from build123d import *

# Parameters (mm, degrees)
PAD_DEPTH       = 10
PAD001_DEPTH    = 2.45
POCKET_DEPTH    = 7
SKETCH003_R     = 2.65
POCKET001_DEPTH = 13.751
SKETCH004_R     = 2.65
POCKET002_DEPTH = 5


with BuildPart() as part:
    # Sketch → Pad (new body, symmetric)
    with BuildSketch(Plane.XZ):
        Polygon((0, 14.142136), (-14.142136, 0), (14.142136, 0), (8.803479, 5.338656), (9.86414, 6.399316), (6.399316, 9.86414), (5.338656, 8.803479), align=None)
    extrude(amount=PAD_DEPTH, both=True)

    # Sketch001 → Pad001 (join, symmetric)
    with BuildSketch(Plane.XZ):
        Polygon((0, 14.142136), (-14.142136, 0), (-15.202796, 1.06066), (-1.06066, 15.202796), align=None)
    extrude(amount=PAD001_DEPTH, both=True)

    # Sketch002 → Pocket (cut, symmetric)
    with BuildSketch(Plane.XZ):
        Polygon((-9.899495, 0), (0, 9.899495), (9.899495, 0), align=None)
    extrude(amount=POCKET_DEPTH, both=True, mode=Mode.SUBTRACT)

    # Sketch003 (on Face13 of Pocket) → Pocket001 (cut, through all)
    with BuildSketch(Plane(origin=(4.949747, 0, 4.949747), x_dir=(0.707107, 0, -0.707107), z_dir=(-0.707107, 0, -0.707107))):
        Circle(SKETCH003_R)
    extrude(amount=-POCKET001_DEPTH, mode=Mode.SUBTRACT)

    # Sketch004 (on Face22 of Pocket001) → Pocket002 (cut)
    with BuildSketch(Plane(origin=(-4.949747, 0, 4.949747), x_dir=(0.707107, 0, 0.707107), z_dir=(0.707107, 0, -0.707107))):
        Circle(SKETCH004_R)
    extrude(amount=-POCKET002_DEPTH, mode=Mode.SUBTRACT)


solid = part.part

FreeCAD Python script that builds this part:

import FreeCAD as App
import Part
import Sketcher
Q = App.Units.Quantity


def add_polygon(sketch, points):
    """Adds a closed chain of lines whose ends are joined by coincident constraints."""
    first, n = sketch.GeometryCount, len(points)
    for a, b in zip(points, points[1:] + points[:1]):
        sketch.addGeometry(Part.LineSegment(App.Vector(*a, 0), App.Vector(*b, 0)), False)
    for i in range(n):
        sketch.addConstraint(Sketcher.Constraint("Coincident", first + i, 2, first + (i + 1) % n, 1))

doc = App.newDocument("Part")
body = doc.addObject("PartDesign::Body", "Body")

# Sketch on XZ plane
sketch1 = doc.addObject("Sketcher::SketchObject", "Sketch")
body.addObject(sketch1)
sketch1.AttachmentSupport = (doc.XZ_Plane, [""])
sketch1.MapMode = "FlatFace"
add_polygon(sketch1, [(0, 14.1), (-14.1, 0), (14.1, 0), (8.8, 5.3), (9.9, 6.4), (6.4, 9.9), (5.3, 8.8)])  # lines 0-6
sketch1.addConstraint([
    Sketcher.Constraint("Horizontal", 1),
    Sketcher.Constraint("Symmetric", 0, 2, 1, 2, -1, 1),
    Sketcher.Constraint("PointOnObject", 6, 2, -2),
    Sketcher.Constraint("Perpendicular", 0, 2),
    Sketcher.Constraint("Perpendicular", 2, 3),
    Sketcher.Constraint("Perpendicular", 3, 4),
    Sketcher.Constraint("Perpendicular", 4, 5),
    Sketcher.Constraint("Perpendicular", 5, 6),
    Sketcher.Constraint("Equal", 3, 5),
    Sketcher.Constraint("Equal", 2, 6),
    Sketcher.Constraint("Distance", 0, Q("20.000001 mm")),
    Sketcher.Constraint("Distance", 3, Q("1.5 mm")),
    Sketcher.Constraint("Distance", 4, Q("4.900001 mm")),
])
pad1 = doc.addObject("PartDesign::Pad", "Pad")
body.addObject(pad1)
pad1.Profile = sketch1
pad1.Length = 20
pad1.Midplane = True

# Sketch on XZ plane
sketch2 = doc.addObject("Sketcher::SketchObject", "Sketch001")
body.addObject(sketch2)
sketch2.AttachmentSupport = (doc.XZ_Plane, [""])
sketch2.MapMode = "FlatFace"
add_polygon(sketch2, [(-14.1, 0), (0, 14.1), (-1.1, 15.2), (-15.2, 1.1)])  # lines 0-3
sketch2.addConstraint([
    Sketcher.Constraint("PointOnObject", 0, 2, -2),
    Sketcher.Constraint("PointOnObject", 3, 2, -1),
    Sketcher.Constraint("Perpendicular", 0, 1),
    Sketcher.Constraint("Perpendicular", 1, 2),
    Sketcher.Constraint("Perpendicular", 2, 3),
    Sketcher.Constraint("Angle", 0, Q("45 deg")),
    Sketcher.Constraint("Distance", 0, Q("20.000001 mm")),
    Sketcher.Constraint("Distance", 1, Q("1.5 mm")),
])
pad2 = doc.addObject("PartDesign::Pad", "Pad001")
body.addObject(pad2)
pad2.Profile = sketch2
pad2.Length = 4.9
pad2.Midplane = True

# Sketch on XZ plane
sketch3 = doc.addObject("Sketcher::SketchObject", "Sketch002")
body.addObject(sketch3)
sketch3.AttachmentSupport = (doc.XZ_Plane, [""])
sketch3.MapMode = "FlatFace"
add_polygon(sketch3, [(0, 10), (-10, 0), (10, 0)])  # lines 0-2
sketch3.addConstraint([
    Sketcher.Constraint("Horizontal", 1),
    Sketcher.Constraint("Symmetric", 0, 2, 1, 2, -1, 1),
    Sketcher.Constraint("PointOnObject", 2, 2, -2),
    Sketcher.Constraint("Perpendicular", 0, 2),
    Sketcher.Constraint("Distance", 0, Q("14 mm")),
])
pocket1 = doc.addObject("PartDesign::Pocket", "Pocket")
body.addObject(pocket1)
pocket1.Profile = sketch3
pocket1.Length = 14
pocket1.Midplane = True

# Sketch on an angled plane
sketch4 = doc.addObject("Sketcher::SketchObject", "Sketch003")
body.addObject(sketch4)
sketch4.Placement = App.Placement(App.Vector(4.949747, 0, 4.949747), App.Rotation(App.Vector(0.707106781, 0, -0.707106781), App.Vector(0, -0.999999999, 0), App.Vector(-0.707106781, 0, -0.707106781), "ZXY"))
sketch4.addGeometry(Part.Circle(App.Vector(0, 0, 0), App.Vector(0, 0, 1), 2.6), False)
sketch4.addConstraint([
    Sketcher.Constraint("Coincident", 0, 3, -1, 1),
    Sketcher.Constraint("Diameter", 0, Q("5.3 mm")),
])
pocket2 = doc.addObject("PartDesign::Pocket", "Pocket001")
body.addObject(pocket2)
pocket2.Profile = sketch4
pocket2.Type = "ThroughAll"

# Sketch on an angled plane
sketch5 = doc.addObject("Sketcher::SketchObject", "Sketch004")
body.addObject(sketch5)
sketch5.Placement = App.Placement(App.Vector(-4.949747, 0, 4.949747), App.Rotation(App.Vector(0.707106781, 0, 0.707106781), App.Vector(0, -0.999999999, 0), App.Vector(0.707106781, 0, -0.707106781), "ZXY"))
sketch5.addGeometry(Part.Circle(App.Vector(0, 0, 0), App.Vector(0, 0, 1), 2.6), False)
sketch5.addConstraint([
    Sketcher.Constraint("Coincident", 0, 3, -1, 1),
    Sketcher.Constraint("Diameter", 0, Q("5.3 mm")),
])
pocket3 = doc.addObject("PartDesign::Pocket", "Pocket002")
body.addObject(pocket3)
pocket3.Profile = sketch5
pocket3.Length = 5

doc.recompute()
